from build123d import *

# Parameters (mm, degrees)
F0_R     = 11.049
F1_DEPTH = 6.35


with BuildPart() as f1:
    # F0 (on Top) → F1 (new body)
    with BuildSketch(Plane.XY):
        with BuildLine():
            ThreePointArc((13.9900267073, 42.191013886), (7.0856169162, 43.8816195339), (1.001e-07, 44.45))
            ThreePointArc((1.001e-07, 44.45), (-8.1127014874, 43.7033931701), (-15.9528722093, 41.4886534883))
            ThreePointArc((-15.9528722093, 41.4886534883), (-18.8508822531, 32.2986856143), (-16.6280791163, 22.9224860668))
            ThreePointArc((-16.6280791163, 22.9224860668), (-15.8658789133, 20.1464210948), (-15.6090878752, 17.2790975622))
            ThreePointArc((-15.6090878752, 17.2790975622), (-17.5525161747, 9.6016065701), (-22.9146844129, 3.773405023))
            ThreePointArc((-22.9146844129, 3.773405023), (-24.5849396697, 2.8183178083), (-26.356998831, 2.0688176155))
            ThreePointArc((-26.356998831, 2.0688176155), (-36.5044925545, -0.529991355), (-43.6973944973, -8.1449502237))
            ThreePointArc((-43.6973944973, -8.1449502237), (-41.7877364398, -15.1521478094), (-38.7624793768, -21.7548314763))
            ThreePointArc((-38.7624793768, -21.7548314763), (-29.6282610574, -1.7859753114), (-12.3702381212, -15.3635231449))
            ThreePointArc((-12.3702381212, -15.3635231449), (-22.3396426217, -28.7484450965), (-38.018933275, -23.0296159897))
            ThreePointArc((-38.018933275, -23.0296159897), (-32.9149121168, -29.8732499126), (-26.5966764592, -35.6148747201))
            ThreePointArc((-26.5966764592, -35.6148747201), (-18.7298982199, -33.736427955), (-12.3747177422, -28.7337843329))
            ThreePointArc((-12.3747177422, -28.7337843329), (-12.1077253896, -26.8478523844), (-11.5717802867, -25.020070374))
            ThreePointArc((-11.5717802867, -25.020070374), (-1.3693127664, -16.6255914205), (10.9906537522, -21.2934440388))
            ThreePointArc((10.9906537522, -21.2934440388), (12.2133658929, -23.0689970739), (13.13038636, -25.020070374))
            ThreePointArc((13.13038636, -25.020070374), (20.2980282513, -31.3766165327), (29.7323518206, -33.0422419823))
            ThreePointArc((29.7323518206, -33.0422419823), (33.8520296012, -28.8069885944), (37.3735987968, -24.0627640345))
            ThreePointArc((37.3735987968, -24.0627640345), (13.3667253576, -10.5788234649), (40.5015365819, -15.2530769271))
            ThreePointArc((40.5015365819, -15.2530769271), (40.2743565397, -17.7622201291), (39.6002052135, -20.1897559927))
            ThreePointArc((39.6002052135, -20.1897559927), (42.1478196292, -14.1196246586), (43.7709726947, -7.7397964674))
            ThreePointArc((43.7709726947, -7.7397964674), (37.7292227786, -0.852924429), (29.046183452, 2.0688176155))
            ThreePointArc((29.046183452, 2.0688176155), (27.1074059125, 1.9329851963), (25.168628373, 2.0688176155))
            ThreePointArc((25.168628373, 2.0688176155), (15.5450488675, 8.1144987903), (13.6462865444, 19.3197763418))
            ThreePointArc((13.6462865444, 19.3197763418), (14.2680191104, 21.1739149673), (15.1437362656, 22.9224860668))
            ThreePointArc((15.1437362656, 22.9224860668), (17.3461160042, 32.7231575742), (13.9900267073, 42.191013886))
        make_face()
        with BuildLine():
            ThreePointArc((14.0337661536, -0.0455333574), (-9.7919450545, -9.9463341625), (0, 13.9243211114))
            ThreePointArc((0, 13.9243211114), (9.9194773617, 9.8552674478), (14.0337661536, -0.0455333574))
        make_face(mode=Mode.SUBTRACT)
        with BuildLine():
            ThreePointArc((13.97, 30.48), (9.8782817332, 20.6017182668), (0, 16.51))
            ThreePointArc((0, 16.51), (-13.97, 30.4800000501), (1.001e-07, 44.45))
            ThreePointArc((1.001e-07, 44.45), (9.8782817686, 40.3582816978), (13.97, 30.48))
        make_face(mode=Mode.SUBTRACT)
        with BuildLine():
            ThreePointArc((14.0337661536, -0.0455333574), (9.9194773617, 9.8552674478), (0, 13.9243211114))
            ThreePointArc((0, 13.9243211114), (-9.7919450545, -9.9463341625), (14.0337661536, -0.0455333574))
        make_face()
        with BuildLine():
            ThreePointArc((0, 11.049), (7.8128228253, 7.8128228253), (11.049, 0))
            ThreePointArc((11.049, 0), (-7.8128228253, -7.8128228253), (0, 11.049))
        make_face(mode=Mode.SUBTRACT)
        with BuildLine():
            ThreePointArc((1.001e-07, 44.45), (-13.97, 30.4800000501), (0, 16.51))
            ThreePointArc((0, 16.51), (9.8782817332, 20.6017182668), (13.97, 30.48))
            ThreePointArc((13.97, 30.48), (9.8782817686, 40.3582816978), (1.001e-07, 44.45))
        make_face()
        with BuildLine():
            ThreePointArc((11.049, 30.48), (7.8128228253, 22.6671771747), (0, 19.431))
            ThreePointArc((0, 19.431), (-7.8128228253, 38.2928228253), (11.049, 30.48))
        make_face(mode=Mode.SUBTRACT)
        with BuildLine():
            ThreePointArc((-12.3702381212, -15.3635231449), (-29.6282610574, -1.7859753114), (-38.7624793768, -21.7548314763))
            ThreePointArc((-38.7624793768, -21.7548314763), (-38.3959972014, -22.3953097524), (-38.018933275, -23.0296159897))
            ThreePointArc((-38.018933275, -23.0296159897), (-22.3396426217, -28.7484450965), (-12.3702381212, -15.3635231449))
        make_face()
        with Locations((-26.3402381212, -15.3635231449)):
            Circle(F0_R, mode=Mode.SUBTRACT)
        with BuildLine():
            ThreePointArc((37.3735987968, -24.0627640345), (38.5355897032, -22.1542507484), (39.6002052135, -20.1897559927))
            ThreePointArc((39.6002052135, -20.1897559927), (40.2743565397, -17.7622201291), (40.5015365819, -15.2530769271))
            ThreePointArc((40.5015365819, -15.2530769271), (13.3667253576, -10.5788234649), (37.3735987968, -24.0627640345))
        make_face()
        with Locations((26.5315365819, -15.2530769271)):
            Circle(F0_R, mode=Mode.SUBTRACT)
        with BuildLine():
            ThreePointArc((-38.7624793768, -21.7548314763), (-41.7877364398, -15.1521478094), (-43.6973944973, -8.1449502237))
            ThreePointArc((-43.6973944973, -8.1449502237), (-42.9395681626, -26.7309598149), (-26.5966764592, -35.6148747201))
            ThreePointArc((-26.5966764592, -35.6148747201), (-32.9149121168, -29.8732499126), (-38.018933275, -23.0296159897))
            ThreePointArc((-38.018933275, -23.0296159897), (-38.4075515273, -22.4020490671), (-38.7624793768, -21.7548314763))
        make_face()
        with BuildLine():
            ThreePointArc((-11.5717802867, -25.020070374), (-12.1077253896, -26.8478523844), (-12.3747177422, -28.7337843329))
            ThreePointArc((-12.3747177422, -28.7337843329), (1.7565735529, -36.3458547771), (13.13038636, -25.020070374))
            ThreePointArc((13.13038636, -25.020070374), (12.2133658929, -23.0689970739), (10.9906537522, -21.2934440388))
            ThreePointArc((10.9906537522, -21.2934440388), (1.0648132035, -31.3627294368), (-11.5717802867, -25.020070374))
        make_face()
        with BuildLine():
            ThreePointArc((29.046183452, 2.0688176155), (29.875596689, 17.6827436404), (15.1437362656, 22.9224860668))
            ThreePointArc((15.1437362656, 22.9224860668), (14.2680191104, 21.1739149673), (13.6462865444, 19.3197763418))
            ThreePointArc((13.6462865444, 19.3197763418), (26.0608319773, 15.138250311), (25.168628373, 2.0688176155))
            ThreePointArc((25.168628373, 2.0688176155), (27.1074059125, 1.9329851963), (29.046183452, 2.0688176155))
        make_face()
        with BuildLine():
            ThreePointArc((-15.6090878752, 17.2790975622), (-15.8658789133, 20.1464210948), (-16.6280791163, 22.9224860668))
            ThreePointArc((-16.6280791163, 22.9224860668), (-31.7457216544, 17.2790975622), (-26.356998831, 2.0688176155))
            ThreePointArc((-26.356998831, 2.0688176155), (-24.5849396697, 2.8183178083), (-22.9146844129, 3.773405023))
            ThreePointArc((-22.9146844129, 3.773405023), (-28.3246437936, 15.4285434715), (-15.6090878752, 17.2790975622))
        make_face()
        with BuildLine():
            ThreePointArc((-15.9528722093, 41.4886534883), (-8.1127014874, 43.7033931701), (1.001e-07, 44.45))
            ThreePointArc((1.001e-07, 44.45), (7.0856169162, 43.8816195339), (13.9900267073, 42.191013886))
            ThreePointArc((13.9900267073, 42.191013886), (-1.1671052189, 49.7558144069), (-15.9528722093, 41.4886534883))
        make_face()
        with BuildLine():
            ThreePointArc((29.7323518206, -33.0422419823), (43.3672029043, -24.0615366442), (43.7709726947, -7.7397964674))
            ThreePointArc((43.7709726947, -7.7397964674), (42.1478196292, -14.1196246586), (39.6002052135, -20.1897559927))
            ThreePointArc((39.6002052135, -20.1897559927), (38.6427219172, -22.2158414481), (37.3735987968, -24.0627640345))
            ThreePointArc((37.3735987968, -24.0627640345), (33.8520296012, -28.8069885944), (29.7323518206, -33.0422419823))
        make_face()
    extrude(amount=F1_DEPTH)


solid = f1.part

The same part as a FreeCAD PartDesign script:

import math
import FreeCAD as App
import Part
import Sketcher

V = App.Vector
Q = App.Units.Quantity

doc = App.newDocument("Part")
body = doc.addObject("PartDesign::Body", "Body")

sketch1 = doc.addObject("Sketcher::SketchObject", "Sketch")
body.addObject(sketch1)
sketch1.AttachmentSupport = (doc.XY_Plane, [""])
sketch1.MapMode = "FlatFace"
sketch1.addGeometry(Part.ArcOfCircle(Part.Circle(V(-0.7, 31.6, 0), V(0, 0, 1), 18.1), math.radians(-29), math.radians(36)), False)
sketch1.addGeometry(Part.ArcOfCircle(Part.Circle(V(-0.7, 31.6, 0), V(0, 0, 1), 18.1), math.radians(36), math.radians(147)), False)
sketch1.addGeometry(Part.ArcOfCircle(Part.Circle(V(-0.7, 31.6, 0), V(0, 0, 1), 18.1), math.radians(147), math.radians(209)), False)
sketch1.addGeometry(Part.ArcOfCircle(Part.Circle(V(-21.3, 12.4, 0), V(0, 0, 1), 11.5), math.radians(66), math.radians(244)), False)
sketch1.addGeometry(Part.ArcOfCircle(Part.Circle(V(-26.9, -16.8, 0), V(0, 0, 1), 18.8), math.radians(88), math.radians(271)), False)
sketch1.addGeometry(Part.ArcOfCircle(Part.Circle(V(-26.9, -16.8, 0), V(0, 0, 1), 18.8), math.radians(-89), math.radians(-39)), False)
sketch1.addGeometry(Part.ArcOfCircle(Part.Circle(V(-0.2, -23, 0), V(0, 0, 1), 13.5), math.radians(-155), math.radians(-9)), False)
sketch1.addGeometry(Part.ArcOfCircle(Part.Circle(V(28, -15.5, 0), V(0, 0, 1), 17.6), math.radians(-147), math.radians(-84)), False)
sketch1.addGeometry(Part.ArcOfCircle(Part.Circle(V(28, -15.5, 0), V(0, 0, 1), 17.6), math.radians(-84), math.radians(26)), False)
sketch1.addGeometry(Part.ArcOfCircle(Part.Circle(V(28, -15.5, 0), V(0, 0, 1), 17.6), math.radians(26), math.radians(86)), False)
sketch1.addGeometry(Part.ArcOfCircle(Part.Circle(V(19, 10.4, 0), V(0, 0, 1), 13.1), math.radians(-40), math.radians(107)), False)
sketch1.addGeometry(Part.ArcOfCircle(Part.Circle(V(0, 0, 0), V(0, 0, 1), 44.5), math.radians(-32.78), math.radians(-27.01)), False)
sketch1.addGeometry(Part.ArcOfCircle(Part.Circle(V(26.5, -15.3, 0), V(0, 0, 1), 14), math.radians(-39.1), math.radians(-20.69)), False)
sketch1.addGeometry(Part.ArcOfCircle(Part.Circle(V(-31.7, 17.3, 0), V(0, 0, 1), 16.1), math.radians(-57), math.radians(0)), False)
sketch1.addGeometry(Part.ArcOfCircle(Part.Circle(V(-21.3, 11.6, 0), V(0, 0, 1), 8), math.radians(45), math.radians(258)), False)
sketch1.addGeometry(Part.ArcOfCircle(Part.Circle(V(27.1, 15.8, 0), V(0, 0, 1), 13.9), math.radians(165), math.radians(262)), False)
sketch1.addGeometry(Part.ArcOfCircle(Part.Circle(V(17.1, 9.2, 0), V(0, 0, 1), 10.7), math.radians(-42), math.radians(109)), False)
sketch1.addGeometry(Part.ArcOfCircle(Part.Circle(V(0.8, -29.6, 0), V(0, 0, 1), 13.2), math.radians(39), math.radians(160)), False)
sketch1.addGeometry(Part.ArcOfCircle(Part.Circle(V(-0.9, -19.5, 0), V(0, 0, 1), 12), math.radians(-153), math.radians(-9)), False)
sketch1.addGeometry(Part.ArcOfCircle(Part.Circle(V(0, 0, 0), V(0, 0, 1), 44.5), math.radians(-150.7), math.radians(-148.8)), False)
sketch1.addGeometry(Part.ArcOfCircle(Part.Circle(V(-26.3, -15.4, 0), V(0, 0, 1), 14), math.radians(-152.77), math.radians(-146.72)), False)
sketch1.addGeometry(Part.Circle(V(-26.3, -15.4, 0), V(0, 0, 1), 11), False)
sketch1.addGeometry(Part.ArcOfCircle(Part.Circle(V(0, 0, 0), V(0, 0, 1), 11), math.radians(90), math.radians(360)), False)
sketch1.addGeometry(Part.ArcOfCircle(Part.Circle(V(0, 0, 0), V(0, 0, 1), 11), math.radians(0), math.radians(90)), False)
sketch1.addGeometry(Part.Circle(V(26.5, -15.3, 0), V(0, 0, 1), 11), False)
sketch1.addGeometry(Part.ArcOfCircle(Part.Circle(V(0, 30.5, 0), V(0, 0, 1), 11), math.radians(0), math.radians(270)), False)
sketch1.addGeometry(Part.ArcOfCircle(Part.Circle(V(0, 30.5, 0), V(0, 0, 1), 11), math.radians(-90), math.radians(0)), False)
sketch1.addConstraint(Sketcher.Constraint("Tangent", 0, 2, 1, 1))
sketch1.addConstraint(Sketcher.Constraint("Tangent", 1, 2, 2, 1))
sketch1.addConstraint(Sketcher.Constraint("Coincident", 2, 2, 3, 1))
sketch1.addConstraint(Sketcher.Constraint("Coincident", 3, 2, 4, 1))
sketch1.addConstraint(Sketcher.Constraint("Tangent", 4, 2, 5, 1))
sketch1.addConstraint(Sketcher.Constraint("Coincident", 5, 2, 6, 1))
sketch1.addConstraint(Sketcher.Constraint("Coincident", 6, 2, 7, 1))
sketch1.addConstraint(Sketcher.Constraint("Tangent", 7, 2, 8, 1))
sketch1.addConstraint(Sketcher.Constraint("Tangent", 8, 2, 9, 1))
sketch1.addConstraint(Sketcher.Constraint("Coincident", 9, 2, 10, 1))
sketch1.addConstraint(Sketcher.Constraint("Coincident", 10, 2, 0, 1))
sketch1.addConstraint(Sketcher.Constraint("Coincident", 11, 1, 12, 1))
sketch1.addConstraint(Sketcher.Constraint("Coincident", 12, 2, 11, 2))
sketch1.addConstraint(Sketcher.Constraint("Coincident", 13, 1, 14, 2))
sketch1.addConstraint(Sketcher.Constraint("Coincident", 14, 1, 13, 2))
sketch1.addConstraint(Sketcher.Constraint("Coincident", 15, 1, 16, 2))
sketch1.addConstraint(Sketcher.Constraint("Coincident", 16, 1, 15, 2))
sketch1.addConstraint(Sketcher.Constraint("Coincident", 17, 1, 18, 2))
sketch1.addConstraint(Sketcher.Constraint("Coincident", 18, 1, 17, 2))
sketch1.addConstraint(Sketcher.Constraint("Coincident", 19, 1, 20, 1))
sketch1.addConstraint(Sketcher.Constraint("Coincident", 20, 2, 19, 2))
sketch1.addConstraint(Sketcher.Constraint("Tangent", 22, 1, 23, 2))
sketch1.addConstraint(Sketcher.Constraint("Coincident", 23, 1, 22, 2))
sketch1.addConstraint(Sketcher.Constraint("Tangent", 25, 1, 26, 2))
sketch1.addConstraint(Sketcher.Constraint("Coincident", 26, 1, 25, 2))
sketch1.addConstraint(Sketcher.Constraint("Coincident", 11, 3, -1, 1))
sketch1.addConstraint(Sketcher.Constraint("Coincident", 19, 3, -1, 1))
sketch1.addConstraint(Sketcher.Constraint("Coincident", 22, 3, -1, 1))
sketch1.addConstraint(Sketcher.Constraint("Coincident", 2, 3, 0, 3))
sketch1.addConstraint(Sketcher.Constraint("Coincident", 9, 3, 7, 3))
sketch1.addConstraint(Sketcher.Constraint("Coincident", 21, 3, 20, 3))
sketch1.addConstraint(Sketcher.Constraint("Coincident", 24, 3, 12, 3))
sketch1.addConstraint(Sketcher.Constraint("Equal", 4, 5))
sketch1.addConstraint(Sketcher.Constraint("Equal", 11, 19))
sketch1.addConstraint(Sketcher.Constraint("Equal", 12, 20))
sketch1.addConstraint(Sketcher.Constraint("Equal", 21, 22))
sketch1.addConstraint(Sketcher.Constraint("Equal", 23, 24))
sketch1.addConstraint(Sketcher.Constraint("Equal", 24, 25))
sketch1.addConstraint(Sketcher.Constraint("PointOnObject", 25, 3, -2))
sketch1.addConstraint(Sketcher.Constraint("PointOnObject", 22, 1, -2))
sketch1.addConstraint(Sketcher.Constraint("PointOnObject", 23, 1, -1))
sketch1.addConstraint(Sketcher.Constraint("PointOnObject", 26, 1, -2))
sketch1.addConstraint(Sketcher.Constraint("Horizontal", 3, 2, 9, 2))
sketch1.addConstraint(Sketcher.Constraint("Horizontal", 2, 2, 10, 2))
sketch1.addConstraint(Sketcher.Constraint("Horizontal", 13, 3, 14, 1))
sketch1.addConstraint(Sketcher.Constraint("Horizontal", 9, 2, 16, 1))
sketch1.addConstraint(Sketcher.Constraint("Horizontal", 6, 2, 18, 1))
sketch1.addConstraint(Sketcher.Constraint("Horizontal", 26, 3, 25, 1))
sketch1.addConstraint(Sketcher.Constraint("Diameter", 21, Q("0.87 in")))
sketch1.addConstraint(Sketcher.Constraint("Radius", 11, Q("1.75 in")))
sketch1.addConstraint(Sketcher.Constraint("Radius", 12, Q("0.55 in")))
sketch1.addConstraint(Sketcher.Constraint("DistanceY", -1, 1, 25, 3, Q("1.2 in")))
sketch1.addConstraint(Sketcher.Constraint("Radius", 17, 13.184798))
sketch1.addConstraint(Sketcher.Constraint("Radius", 4, 18.84789))
sketch1.addConstraint(Sketcher.Constraint("Radius", 6, 13.462378))
sketch1.addConstraint(Sketcher.Constraint("Radius", 10, 13.072312))
sketch1.addConstraint(Sketcher.Constraint("Radius", 16, 10.724031))
sketch1.addConstraint(Sketcher.Constraint("Radius", 0, 18.120682))
sketch1.addConstraint(Sketcher.Constraint("Radius", 3, 11.507353))
sketch1.addConstraint(Sketcher.Constraint("Radius", 7, 17.616763))
sketch1.addConstraint(Sketcher.Constraint("Radius", 13, 16.136634))
sketch1.addConstraint(Sketcher.Constraint("Radius", 14, 8.012173))
sketch1.addConstraint(Sketcher.Constraint("Radius", 15, 13.904298))
sketch1.addConstraint(Sketcher.Constraint("Radius", 18, 12.018105))
sketch1.addConstraint(Sketcher.Constraint("DistanceX", 3, 2, -1, 1, 26.356999))
sketch1.addConstraint(Sketcher.Constraint("DistanceX", -1, 1, 11, 1, 37.373599))
sketch1.addConstraint(Sketcher.Constraint("DistanceX", 4, 3, 3, 3, 5.6214))
sketch1.addConstraint(Sketcher.Constraint("DistanceY", 4, 3, 7, 3, 1.255498))
sketch1.addConstraint(Sketcher.Constraint("DistanceX", 13, 3, 14, 3, 10.468299))
sketch1.addConstraint(Sketcher.Constraint("DistanceX", 1, 3, 0, 2, 14.732198))
sketch1.addConstraint(Sketcher.Constraint("DistanceX", 1, 2, 0, 3, 15.210701))
sketch1.addConstraint(Sketcher.Constraint("DistanceX", 4, 3, 5, 2, 14.564099))
sketch1.addConstraint(Sketcher.Constraint("DistanceX", 0, 3, -1, 1, 0.742171))
sketch1.addConstraint(Sketcher.Constraint("DistanceY", -1, 1, 3, 3, 12.413952))
sketch1.addConstraint(Sketcher.Constraint("DistanceY", 4, 3, -1, 1, 16.77009))
sketch1.addConstraint(Sketcher.Constraint("DistanceY", -1, 1, 10, 3, 10.431529))
sketch1.addConstraint(Sketcher.Constraint("DistanceX", 13, 3, -1, 1, 31.745722))
sketch1.addConstraint(Sketcher.Constraint("DistanceY", -1, 1, 14, 3, 11.61651))
sketch1.addConstraint(Sketcher.Constraint("DistanceX", -1, 1, 16, 3, 17.14308))
sketch1.addConstraint(Sketcher.Constraint("DistanceY", 17, 3, -1, 1, 29.634141))
sketch1.addConstraint(Sketcher.Constraint("DistanceX", 20, 3, -1, 1, 26.340238))
sketch1.addConstraint(Sketcher.Constraint("DistanceX", 2, 2, -1, 1, 16.628079))
sketch1.addConstraint(Sketcher.Constraint("DistanceY", 6, 2, -1, 1, 25.02007))
sketch1.addConstraint(Sketcher.Constraint("DistanceX", -1, 1, 7, 2, 29.732352))
sketch1.addConstraint(Sketcher.Constraint("DistanceX", -1, 1, 16, 1, 25.168628))
sketch1.addConstraint(Sketcher.Constraint("DistanceX", 18, 1, -1, 1, 11.57178))
sketch1.addConstraint(Sketcher.Constraint("DistanceX", 19, 1, -1, 1, 38.762479))
sketch1.addConstraint(Sketcher.Constraint("DistanceX", 12, 3, 7, 3, 1.431119))
sketch1.addConstraint(Sketcher.Constraint("DistanceX", 10, 3, 15, 3, 8.10863))
sketch1.addConstraint(Sketcher.Constraint("DistanceY", 6, 3, 18, 3, 3.518679))
sketch1.addConstraint(Sketcher.Constraint("DistanceX", 4, 3, 4, 2, 0.34214))
sketch1.addConstraint(Sketcher.Constraint("DistanceY", 24, 3, 8, 2, 7.51328))
pad1 = doc.addObject("PartDesign::Pad", "Pad")
body.addObject(pad1)
pad1.Profile = sketch1
pad1.Length = Q("0.25 in")

doc.recompute()
